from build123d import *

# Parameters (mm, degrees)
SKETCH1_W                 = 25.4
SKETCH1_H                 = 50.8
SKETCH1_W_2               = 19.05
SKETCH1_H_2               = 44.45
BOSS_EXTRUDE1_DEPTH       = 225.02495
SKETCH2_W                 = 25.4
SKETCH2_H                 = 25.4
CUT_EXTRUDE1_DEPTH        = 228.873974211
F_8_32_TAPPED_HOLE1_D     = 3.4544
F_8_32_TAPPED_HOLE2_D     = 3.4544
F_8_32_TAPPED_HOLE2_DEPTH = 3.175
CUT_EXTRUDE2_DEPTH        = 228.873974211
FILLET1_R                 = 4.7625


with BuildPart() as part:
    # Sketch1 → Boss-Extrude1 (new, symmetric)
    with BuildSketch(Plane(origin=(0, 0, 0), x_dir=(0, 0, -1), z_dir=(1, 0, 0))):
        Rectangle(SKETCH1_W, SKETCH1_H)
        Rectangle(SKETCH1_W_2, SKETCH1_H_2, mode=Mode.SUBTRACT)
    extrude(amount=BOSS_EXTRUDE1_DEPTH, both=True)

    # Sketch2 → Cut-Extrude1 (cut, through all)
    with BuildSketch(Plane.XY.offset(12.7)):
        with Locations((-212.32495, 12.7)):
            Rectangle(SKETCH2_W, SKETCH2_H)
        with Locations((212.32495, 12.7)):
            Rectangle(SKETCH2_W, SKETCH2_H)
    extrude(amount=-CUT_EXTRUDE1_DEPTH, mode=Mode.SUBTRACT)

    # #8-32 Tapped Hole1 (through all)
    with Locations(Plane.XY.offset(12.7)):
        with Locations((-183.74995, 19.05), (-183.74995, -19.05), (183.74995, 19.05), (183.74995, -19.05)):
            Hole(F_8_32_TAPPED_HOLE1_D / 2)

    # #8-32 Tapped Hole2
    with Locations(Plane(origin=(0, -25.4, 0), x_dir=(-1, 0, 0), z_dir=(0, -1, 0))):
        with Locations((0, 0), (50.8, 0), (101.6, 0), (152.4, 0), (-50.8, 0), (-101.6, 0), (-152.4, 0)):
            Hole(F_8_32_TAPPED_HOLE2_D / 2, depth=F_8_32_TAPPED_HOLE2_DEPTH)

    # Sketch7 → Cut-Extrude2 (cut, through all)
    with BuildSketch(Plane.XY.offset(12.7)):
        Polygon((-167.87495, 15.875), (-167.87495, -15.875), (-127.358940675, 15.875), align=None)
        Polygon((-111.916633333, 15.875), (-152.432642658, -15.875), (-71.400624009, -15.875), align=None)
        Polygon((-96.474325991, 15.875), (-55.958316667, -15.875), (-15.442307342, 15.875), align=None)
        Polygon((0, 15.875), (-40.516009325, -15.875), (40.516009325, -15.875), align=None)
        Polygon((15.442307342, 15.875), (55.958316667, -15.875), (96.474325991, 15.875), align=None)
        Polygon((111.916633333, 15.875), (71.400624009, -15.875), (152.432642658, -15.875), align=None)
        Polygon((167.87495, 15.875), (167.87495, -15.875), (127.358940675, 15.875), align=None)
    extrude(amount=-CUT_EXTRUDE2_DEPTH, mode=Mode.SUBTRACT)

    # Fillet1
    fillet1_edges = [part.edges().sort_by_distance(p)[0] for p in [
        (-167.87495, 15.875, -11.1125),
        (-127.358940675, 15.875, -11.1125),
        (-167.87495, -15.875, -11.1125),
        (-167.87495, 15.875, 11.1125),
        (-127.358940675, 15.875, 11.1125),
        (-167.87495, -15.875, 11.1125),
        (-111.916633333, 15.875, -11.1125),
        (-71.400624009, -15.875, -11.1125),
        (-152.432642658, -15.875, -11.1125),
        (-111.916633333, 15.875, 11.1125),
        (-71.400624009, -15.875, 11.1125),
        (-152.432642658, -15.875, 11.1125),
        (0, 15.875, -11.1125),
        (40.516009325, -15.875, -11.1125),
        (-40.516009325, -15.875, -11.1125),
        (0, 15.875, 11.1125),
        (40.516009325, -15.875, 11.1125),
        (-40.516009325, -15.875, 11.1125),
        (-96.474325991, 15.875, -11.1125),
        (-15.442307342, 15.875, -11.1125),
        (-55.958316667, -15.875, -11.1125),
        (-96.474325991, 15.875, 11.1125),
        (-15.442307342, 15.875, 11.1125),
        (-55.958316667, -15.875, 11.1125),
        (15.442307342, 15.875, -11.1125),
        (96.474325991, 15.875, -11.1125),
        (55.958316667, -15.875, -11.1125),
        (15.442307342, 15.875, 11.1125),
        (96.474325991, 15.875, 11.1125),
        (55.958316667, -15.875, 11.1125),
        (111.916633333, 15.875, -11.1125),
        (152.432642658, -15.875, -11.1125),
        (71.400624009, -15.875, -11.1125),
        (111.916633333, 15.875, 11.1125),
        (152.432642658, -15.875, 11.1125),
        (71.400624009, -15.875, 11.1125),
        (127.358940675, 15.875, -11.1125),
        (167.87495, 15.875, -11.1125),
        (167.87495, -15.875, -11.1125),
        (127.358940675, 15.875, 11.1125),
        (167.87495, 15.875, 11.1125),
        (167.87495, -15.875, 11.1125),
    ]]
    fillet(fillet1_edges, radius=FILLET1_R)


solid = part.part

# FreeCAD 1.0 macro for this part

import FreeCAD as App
import Part
import Sketcher
from FreeCAD import Vector
Q = App.Units.Quantity


def edges_at(feature, points):
    """Names of the edges that pass closest to the given points."""
    edges = feature.Shape.Edges
    near = lambda p: min(range(len(edges)), key=lambda i: edges[i].distToShape(Part.Vertex(*p))[0])
    return sorted({f"Edge{near(p) + 1}" for p in points})

doc = App.newDocument("Part")
body = doc.addObject("PartDesign::Body", "Body")

# Sketch on YZ plane
sketch1 = body.newObject("Sketcher::SketchObject", "Sketch")
sketch1.AttachmentSupport = (doc.getObject("YZ_Plane"), [""])
sketch1.MapMode = "FlatFace"
sketch1.addGeometry([
    Part.LineSegment(Vector(25.4, 12.7, 0), Vector(-25.4, 12.7, 0)),  # 0
    Part.LineSegment(Vector(-25.4, 12.7, 0), Vector(-25.4, -12.7, 0)),  # 1
    Part.LineSegment(Vector(-25.4, -12.7, 0), Vector(25.4, -12.7, 0)),  # 2
    Part.LineSegment(Vector(25.4, -12.7, 0), Vector(25.4, 12.7, 0)),  # 3
    Part.LineSegment(Vector(-22.225, -9.525, 0), Vector(-22.225, 9.525, 0)),  # 4
    Part.LineSegment(Vector(-22.225, 9.525, 0), Vector(22.225, 9.525, 0)),  # 5
    Part.LineSegment(Vector(22.225, 9.525, 0), Vector(22.225, -9.525, 0)),  # 6
    Part.LineSegment(Vector(22.225, -9.525, 0), Vector(-22.225, -9.525, 0)),  # 7
], False)
sketch1.addConstraint([
    Sketcher.Constraint("Coincident", 0, 2, 1, 1),
    Sketcher.Constraint("Coincident", 1, 2, 2, 1),
    Sketcher.Constraint("Coincident", 2, 2, 3, 1),
    Sketcher.Constraint("Coincident", 3, 2, 0, 1),
    Sketcher.Constraint("Coincident", 4, 2, 5, 1),
    Sketcher.Constraint("Coincident", 5, 2, 6, 1),
    Sketcher.Constraint("Coincident", 6, 2, 7, 1),
    Sketcher.Constraint("Coincident", 7, 2, 4, 1),
    Sketcher.Constraint("Horizontal", 0),
    Sketcher.Constraint("Vertical", 1),
    Sketcher.Constraint("Horizontal", 2),
    Sketcher.Constraint("Vertical", 3),
    Sketcher.Constraint("Vertical", 4),
    Sketcher.Constraint("Horizontal", 5),
    Sketcher.Constraint("Vertical", 6),
    Sketcher.Constraint("Horizontal", 7),
    Sketcher.Constraint("Symmetric", 0, 2, 2, 2, -1, 1),
    Sketcher.Constraint("Symmetric", 4, 2, 6, 2, -1, 1),
    Sketcher.Constraint("DistanceX", 0, 2, 0, 1, Q("2 in")),
    Sketcher.Constraint("DistanceY", 1, 2, 1, 1, Q("1 in")),
    Sketcher.Constraint("DistanceX", 5, 1, 5, 2, Q("1.75 in")),
    Sketcher.Constraint("DistanceY", 4, 1, 4, 2, Q("0.75 in")),
])
pad1 = body.newObject("PartDesign::Pad", "Pad")
pad1.Profile = sketch1
pad1.Length = Q("17.7185 in")
pad1.Midplane = True

# Sketch on XY plane
sketch2 = body.newObject("Sketcher::SketchObject", "Sketch001")
sketch2.AttachmentSupport = (doc.getObject("XY_Plane"), [""])
sketch2.MapMode = "FlatFace"
sketch2.AttachmentOffset = App.Placement(Vector(0, 0, 0.5 * 25.4), App.Rotation())
sketch2.addGeometry([
    Part.LineSegment(Vector(-225.02495, 25.4, 0), Vector(-225.02495, 0, 0)),  # 0
    Part.LineSegment(Vector(-225.02495, 0, 0), Vector(-199.62495, 0, 0)),  # 1
    Part.LineSegment(Vector(-199.62495, 0, 0), Vector(-199.62495, 25.4, 0)),  # 2
    Part.LineSegment(Vector(-199.62495, 25.4, 0), Vector(-225.02495, 25.4, 0)),  # 3
    Part.LineSegment(Vector(199.62495, 25.4, 0), Vector(199.62495, 0, 0)),  # 4
    Part.LineSegment(Vector(199.62495, 0, 0), Vector(225.02495, 0, 0)),  # 5
    Part.LineSegment(Vector(225.02495, 0, 0), Vector(225.02495, 25.4, 0)),  # 6
    Part.LineSegment(Vector(225.02495, 25.4, 0), Vector(199.62495, 25.4, 0)),  # 7
], False)
sketch2.addConstraint([
    Sketcher.Constraint("Coincident", 0, 2, 1, 1),
    Sketcher.Constraint("Coincident", 1, 2, 2, 1),
    Sketcher.Constraint("Coincident", 2, 2, 3, 1),
    Sketcher.Constraint("Coincident", 3, 2, 0, 1),
    Sketcher.Constraint("Coincident", 4, 2, 5, 1),
    Sketcher.Constraint("Coincident", 5, 2, 6, 1),
    Sketcher.Constraint("Coincident", 6, 2, 7, 1),
    Sketcher.Constraint("Coincident", 7, 2, 4, 1),
    Sketcher.Constraint("Vertical", 0),
    Sketcher.Constraint("Horizontal", 1),
    Sketcher.Constraint("Vertical", 2),
    Sketcher.Constraint("Horizontal", 3),
    Sketcher.Constraint("Vertical", 4),
    Sketcher.Constraint("Horizontal", 5),
    Sketcher.Constraint("Vertical", 6),
    Sketcher.Constraint("Horizontal", 7),
    Sketcher.Constraint("Symmetric", 1, 2, 4, 2, -1, 1),
    Sketcher.Constraint("Symmetric", 0, 2, 5, 2, -2),
    Sketcher.Constraint("Horizontal", 3, 2, 6, 2),
    Sketcher.Constraint("Equal", 7, 0),
    Sketcher.Constraint("DistanceX", 1, 1, 1, 2, Q("1 in")),
    Sketcher.Constraint("DistanceX", 1, 2, 4, 2, Q("15.7185 in")),
])
pocket1 = body.newObject("PartDesign::Pocket", "Pocket")
pocket1.Profile = sketch2
pocket1.Type = "ThroughAll"

# Sketch on XY plane
sketch3 = body.newObject("Sketcher::SketchObject", "Sketch002")
sketch3.AttachmentSupport = (doc.getObject("XY_Plane"), [""])
sketch3.MapMode = "FlatFace"
sketch3.AttachmentOffset = App.Placement(Vector(0, 0, 0.5 * 25.4), App.Rotation())
sketch3.addGeometry([
    Part.Circle(Vector(-183.74995, 19.05, 0), Vector(0, 0, 1), 1.7272),
    Part.Circle(Vector(-183.74995, -19.05, 0), Vector(0, 0, 1), 1.7272),
    Part.Circle(Vector(183.74995, 19.05, 0), Vector(0, 0, 1), 1.7272),
    Part.Circle(Vector(183.74995, -19.05, 0), Vector(0, 0, 1), 1.7272),
], False)
sketch3.addConstraint([
    Sketcher.Constraint("Equal", 0, 1),
    Sketcher.Constraint("Equal", 1, 2),
    Sketcher.Constraint("Equal", 2, 3),
    Sketcher.Constraint("Symmetric", 1, 3, 2, 3, -1, 1),
    Sketcher.Constraint("Symmetric", 0, 3, 3, 3, -1, 1),
    Sketcher.Constraint("Symmetric", 0, 3, 2, 3, -2),
    Sketcher.Constraint("Diameter", 0, Q("0.136 in")),
    Sketcher.Constraint("DistanceY", 1, 3, 0, 3, Q("1.5 in")),
    Sketcher.Constraint("DistanceX", 0, 3, 2, 3, Q("14.4685 in")),
])
doc.recompute()
hole = body.newObject("PartDesign::Hole", "Hole")
hole.Profile = sketch3
hole.ThreadType = "None"
hole.Diameter = Q("0.136 in")
hole.DepthType = "ThroughAll"

# Sketch on XZ plane
sketch4 = body.newObject("Sketcher::SketchObject", "Sketch003")
sketch4.AttachmentSupport = (doc.getObject("XZ_Plane"), [""])
sketch4.MapMode = "FlatFace"
sketch4.AttachmentOffset = App.Placement(Vector(0, 0, 1 * 25.4), App.Rotation())
sketch4.addGeometry([
    Part.Circle(Vector(0, 0, 0), Vector(0, 0, 1), 1.7272),  # 0
    Part.Circle(Vector(-50.8, 0, 0), Vector(0, 0, 1), 1.7272),  # 1
    Part.Circle(Vector(-101.6, 0, 0), Vector(0, 0, 1), 1.7272),  # 2
    Part.Circle(Vector(-152.4, 0, 0), Vector(0, 0, 1), 1.7272),  # 3
    Part.Circle(Vector(50.8, 0, 0), Vector(0, 0, 1), 1.7272),  # 4
    Part.Circle(Vector(101.6, 0, 0), Vector(0, 0, 1), 1.7272),  # 5
    Part.Circle(Vector(152.4, 0, 0), Vector(0, 0, 1), 1.7272),  # 6
], False)
sketch4.addConstraint([
    Sketcher.Constraint("Coincident", 0, 3, -1, 1),
    Sketcher.Constraint("Equal", 0, 1),
    Sketcher.Constraint("Equal", 1, 2),
    Sketcher.Constraint("Equal", 2, 3),
    Sketcher.Constraint("Equal", 3, 4),
    Sketcher.Constraint("Equal", 4, 5),
    Sketcher.Constraint("Equal", 5, 6),
    Sketcher.Constraint("Symmetric", 1, 3, 4, 3, -1, 1),
    Sketcher.Constraint("Symmetric", 2, 3, 5, 3, -1, 1),
    Sketcher.Constraint("Symmetric", 3, 3, 6, 3, -1, 1),
    Sketcher.Constraint("PointOnObject", 1, 3, -1),
    Sketcher.Constraint("PointOnObject", 2, 3, -1),
    Sketcher.Constraint("PointOnObject", 3, 3, -1),
    Sketcher.Constraint("Diameter", 0, Q("0.136 in")),
    Sketcher.Constraint("DistanceX", 1, 3, -1, 1, Q("2 in")),
    Sketcher.Constraint("DistanceX", 2, 3, -1, 1, Q("4 in")),
    Sketcher.Constraint("DistanceX", 3, 3, -1, 1, Q("6 in")),
])
doc.recompute()
hole2 = body.newObject("PartDesign::Hole", "Hole001")
hole2.Profile = sketch4
hole2.ThreadType = "None"
hole2.Diameter = Q("0.136 in")
hole2.DepthType = "Dimension"
hole2.Depth = Q("0.125 in")
hole2.DrillPoint = "Flat"

# Sketch on XY plane
sketch5 = body.newObject("Sketcher::SketchObject", "Sketch004")
sketch5.AttachmentSupport = (doc.getObject("XY_Plane"), [""])
sketch5.MapMode = "FlatFace"
sketch5.AttachmentOffset = App.Placement(Vector(0, 0, 0.5 * 25.4), App.Rotation())
sketch5.addGeometry([
    Part.LineSegment(Vector(-167.87495, 15.875, 0), Vector(-167.87495, -15.875, 0)),  # 0
    Part.LineSegment(Vector(-167.87495, -15.875, 0), Vector(-127.358941, 15.875, 0)),  # 1
    Part.LineSegment(Vector(-127.358941, 15.875, 0), Vector(-167.87495, 15.875, 0)),  # 2
    Part.LineSegment(Vector(-111.916633, 15.875, 0), Vector(-152.432643, -15.875, 0)),  # 3
    Part.LineSegment(Vector(-152.432643, -15.875, 0), Vector(-71.400624, -15.875, 0)),  # 4
    Part.LineSegment(Vector(-71.400624, -15.875, 0), Vector(-111.916633, 15.875, 0)),  # 5
    Part.LineSegment(Vector(-96.474326, 15.875, 0), Vector(-55.958317, -15.875, 0)),  # 6
    Part.LineSegment(Vector(-55.958317, -15.875, 0), Vector(-15.442307, 15.875, 0)),  # 7
    Part.LineSegment(Vector(-15.442307, 15.875, 0), Vector(-96.474326, 15.875, 0)),  # 8
    Part.LineSegment(Vector(0, 15.875, 0), Vector(-40.516009, -15.875, 0)),  # 9
    Part.LineSegment(Vector(-40.516009, -15.875, 0), Vector(40.516009, -15.875, 0)),  # 10
    Part.LineSegment(Vector(40.516009, -15.875, 0), Vector(0, 15.875, 0)),  # 11
    Part.LineSegment(Vector(15.442307, 15.875, 0), Vector(55.958317, -15.875, 0)),  # 12
    Part.LineSegment(Vector(55.958317, -15.875, 0), Vector(96.474326, 15.875, 0)),  # 13
    Part.LineSegment(Vector(96.474326, 15.875, 0), Vector(15.442307, 15.875, 0)),  # 14
    Part.LineSegment(Vector(111.916633, 15.875, 0), Vector(71.400624, -15.875, 0)),  # 15
    Part.LineSegment(Vector(71.400624, -15.875, 0), Vector(152.432643, -15.875, 0)),  # 16
    Part.LineSegment(Vector(152.432643, -15.875, 0), Vector(111.916633, 15.875, 0)),  # 17
    Part.LineSegment(Vector(167.87495, -15.875, 0), Vector(167.87495, 15.875, 0)),  # 18
    Part.LineSegment(Vector(167.87495, 15.875, 0), Vector(127.358941, 15.875, 0)),  # 19
    Part.LineSegment(Vector(127.358941, 15.875, 0), Vector(167.87495, -15.875, 0)),  # 20
], False)
sketch5.addConstraint([
    Sketcher.Constraint("Coincident", 0, 2, 1, 1),
    Sketcher.Constraint("Coincident", 1, 2, 2, 1),
    Sketcher.Constraint("Coincident", 2, 2, 0, 1),
    Sketcher.Constraint("Coincident", 3, 2, 4, 1),
    Sketcher.Constraint("Coincident", 4, 2, 5, 1),
    Sketcher.Constraint("Coincident", 5, 2, 3, 1),
    Sketcher.Constraint("Coincident", 6, 2, 7, 1),
    Sketcher.Constraint("Coincident", 7, 2, 8, 1),
    Sketcher.Constraint("Coincident", 8, 2, 6, 1),
    Sketcher.Constraint("Coincident", 9, 2, 10, 1),
    Sketcher.Constraint("Coincident", 10, 2, 11, 1),
    Sketcher.Constraint("Coincident", 11, 2, 9, 1),
    Sketcher.Constraint("Coincident", 12, 2, 13, 1),
    Sketcher.Constraint("Coincident", 13, 2, 14, 1),
    Sketcher.Constraint("Coincident", 14, 2, 12, 1),
    Sketcher.Constraint("Coincident", 15, 2, 16, 1),
    Sketcher.Constraint("Coincident", 16, 2, 17, 1),
    Sketcher.Constraint("Coincident", 17, 2, 15, 1),
    Sketcher.Constraint("Coincident", 18, 2, 19, 1),
    Sketcher.Constraint("Coincident", 19, 2, 20, 1),
    Sketcher.Constraint("Coincident", 20, 2, 18, 1),
    Sketcher.Constraint("Vertical", 0),
    Sketcher.Constraint("Horizontal", 2),
    Sketcher.Constraint("Horizontal", 4),
    Sketcher.Constraint("Horizontal", 8),
    Sketcher.Constraint("Horizontal", 10),
    Sketcher.Constraint("Horizontal", 14),
    Sketcher.Constraint("Horizontal", 16),
    Sketcher.Constraint("Vertical", 18),
    Sketcher.Constraint("Horizontal", 19),
    Sketcher.Constraint("Symmetric", 0, 2, 18, 2, -1, 1),
    Sketcher.Constraint("Symmetric", 6, 2, 12, 2, -2),
    Sketcher.Constraint("Symmetric", 8, 2, 13, 2, -2),
    Sketcher.Constraint("Symmetric", 4, 2, 15, 2, -2),
    Sketcher.Constraint("Symmetric", 5, 2, 17, 2, -2),
    Sketcher.Constraint("Symmetric", 1, 2, 19, 2, -2),
    Sketcher.Constraint("PointOnObject", 11, 2, -2),
    Sketcher.Constraint("Parallel", 1, 3),
    Sketcher.Constraint("Parallel", 5, 6),
    Sketcher.Constraint("Parallel", 3, 7),
    Sketcher.Constraint("Parallel", 7, 9),
    Sketcher.Constraint("Parallel", 6, 11),
    Sketcher.Constraint("Parallel", 11, 12),
    Sketcher.Constraint("Parallel", 9, 13),
    Sketcher.Constraint("Parallel", 12, 17),
    Sketcher.Constraint("Parallel", 17, 20),
    Sketcher.Constraint("Horizontal", 0, 2, 3, 2),
    Sketcher.Constraint("Horizontal", 2, 2, 5, 2),
    Sketcher.Constraint("Horizontal", 4, 2, 6, 2),
    Sketcher.Constraint("Horizontal", 5, 2, 7, 2),
    Sketcher.Constraint("Horizontal", 6, 2, 9, 2),
    Sketcher.Constraint("Horizontal", 8, 2, 11, 2),
    Sketcher.Constraint("DistanceY", 0, 2, 0, 1, Q("1.25 in")),
    Sketcher.Constraint("DistanceX", 2, 2, 2, 1, 40.516009),
    Sketcher.Constraint("DistanceX", 3, 2, 1, 2, 25.073702),
    Sketcher.Constraint("DistanceX", 8, 2, 4, 2, 25.073702),
    Sketcher.Constraint("DistanceX", 9, 2, 7, 2, 25.073702),
])
pocket2 = body.newObject("PartDesign::Pocket", "Pocket001")
pocket2.Profile = sketch5
pocket2.Type = "ThroughAll"
doc.recompute()

fillet = body.newObject("PartDesign::Fillet", "Fillet")
fillet.Base = (pocket2, edges_at(pocket2, [
    (-167.875, 15.875, -11.113),
    (-127.359, 15.875, -11.113),
    (-167.875, -15.875, -11.113),
    (-167.875, 15.875, 11.113),
    (-127.359, 15.875, 11.113),
    (-167.875, -15.875, 11.113),
    (-111.917, 15.875, -11.113),
    (-71.401, -15.875, -11.113),
    (-152.433, -15.875, -11.113),
    (-111.917, 15.875, 11.113),
    (-71.401, -15.875, 11.113),
    (-152.433, -15.875, 11.113),
    (0, 15.875, -11.113),
    (40.516, -15.875, -11.113),
    (-40.516, -15.875, -11.113),
    (0, 15.875, 11.113),
    (40.516, -15.875, 11.113),
    (-40.516, -15.875, 11.113),
    (-96.474, 15.875, -11.113),
    (-15.442, 15.875, -11.113),
    (-55.958, -15.875, -11.113),
    (-96.474, 15.875, 11.113),
    (-15.442, 15.875, 11.113),
    (-55.958, -15.875, 11.113),
    (15.442, 15.875, -11.113),
    (96.474, 15.875, -11.113),
    (55.958, -15.875, -11.113),
    (15.442, 15.875, 11.113),
    (96.474, 15.875, 11.113),
    (55.958, -15.875, 11.113),
    (111.917, 15.875, -11.113),
    (152.433, -15.875, -11.113),
    (71.401, -15.875, -11.113),
    (111.917, 15.875, 11.113),
    (152.433, -15.875, 11.113),
    (71.401, -15.875, 11.113),
    (127.359, 15.875, -11.113),
    (167.875, 15.875, -11.113),
    (167.875, -15.875, -11.113),
    (127.359, 15.875, 11.113),
    (167.875, 15.875, 11.113),
    (167.875, -15.875, 11.113),
]))
fillet.Radius = Q("0.1875 in")

doc.recompute()
